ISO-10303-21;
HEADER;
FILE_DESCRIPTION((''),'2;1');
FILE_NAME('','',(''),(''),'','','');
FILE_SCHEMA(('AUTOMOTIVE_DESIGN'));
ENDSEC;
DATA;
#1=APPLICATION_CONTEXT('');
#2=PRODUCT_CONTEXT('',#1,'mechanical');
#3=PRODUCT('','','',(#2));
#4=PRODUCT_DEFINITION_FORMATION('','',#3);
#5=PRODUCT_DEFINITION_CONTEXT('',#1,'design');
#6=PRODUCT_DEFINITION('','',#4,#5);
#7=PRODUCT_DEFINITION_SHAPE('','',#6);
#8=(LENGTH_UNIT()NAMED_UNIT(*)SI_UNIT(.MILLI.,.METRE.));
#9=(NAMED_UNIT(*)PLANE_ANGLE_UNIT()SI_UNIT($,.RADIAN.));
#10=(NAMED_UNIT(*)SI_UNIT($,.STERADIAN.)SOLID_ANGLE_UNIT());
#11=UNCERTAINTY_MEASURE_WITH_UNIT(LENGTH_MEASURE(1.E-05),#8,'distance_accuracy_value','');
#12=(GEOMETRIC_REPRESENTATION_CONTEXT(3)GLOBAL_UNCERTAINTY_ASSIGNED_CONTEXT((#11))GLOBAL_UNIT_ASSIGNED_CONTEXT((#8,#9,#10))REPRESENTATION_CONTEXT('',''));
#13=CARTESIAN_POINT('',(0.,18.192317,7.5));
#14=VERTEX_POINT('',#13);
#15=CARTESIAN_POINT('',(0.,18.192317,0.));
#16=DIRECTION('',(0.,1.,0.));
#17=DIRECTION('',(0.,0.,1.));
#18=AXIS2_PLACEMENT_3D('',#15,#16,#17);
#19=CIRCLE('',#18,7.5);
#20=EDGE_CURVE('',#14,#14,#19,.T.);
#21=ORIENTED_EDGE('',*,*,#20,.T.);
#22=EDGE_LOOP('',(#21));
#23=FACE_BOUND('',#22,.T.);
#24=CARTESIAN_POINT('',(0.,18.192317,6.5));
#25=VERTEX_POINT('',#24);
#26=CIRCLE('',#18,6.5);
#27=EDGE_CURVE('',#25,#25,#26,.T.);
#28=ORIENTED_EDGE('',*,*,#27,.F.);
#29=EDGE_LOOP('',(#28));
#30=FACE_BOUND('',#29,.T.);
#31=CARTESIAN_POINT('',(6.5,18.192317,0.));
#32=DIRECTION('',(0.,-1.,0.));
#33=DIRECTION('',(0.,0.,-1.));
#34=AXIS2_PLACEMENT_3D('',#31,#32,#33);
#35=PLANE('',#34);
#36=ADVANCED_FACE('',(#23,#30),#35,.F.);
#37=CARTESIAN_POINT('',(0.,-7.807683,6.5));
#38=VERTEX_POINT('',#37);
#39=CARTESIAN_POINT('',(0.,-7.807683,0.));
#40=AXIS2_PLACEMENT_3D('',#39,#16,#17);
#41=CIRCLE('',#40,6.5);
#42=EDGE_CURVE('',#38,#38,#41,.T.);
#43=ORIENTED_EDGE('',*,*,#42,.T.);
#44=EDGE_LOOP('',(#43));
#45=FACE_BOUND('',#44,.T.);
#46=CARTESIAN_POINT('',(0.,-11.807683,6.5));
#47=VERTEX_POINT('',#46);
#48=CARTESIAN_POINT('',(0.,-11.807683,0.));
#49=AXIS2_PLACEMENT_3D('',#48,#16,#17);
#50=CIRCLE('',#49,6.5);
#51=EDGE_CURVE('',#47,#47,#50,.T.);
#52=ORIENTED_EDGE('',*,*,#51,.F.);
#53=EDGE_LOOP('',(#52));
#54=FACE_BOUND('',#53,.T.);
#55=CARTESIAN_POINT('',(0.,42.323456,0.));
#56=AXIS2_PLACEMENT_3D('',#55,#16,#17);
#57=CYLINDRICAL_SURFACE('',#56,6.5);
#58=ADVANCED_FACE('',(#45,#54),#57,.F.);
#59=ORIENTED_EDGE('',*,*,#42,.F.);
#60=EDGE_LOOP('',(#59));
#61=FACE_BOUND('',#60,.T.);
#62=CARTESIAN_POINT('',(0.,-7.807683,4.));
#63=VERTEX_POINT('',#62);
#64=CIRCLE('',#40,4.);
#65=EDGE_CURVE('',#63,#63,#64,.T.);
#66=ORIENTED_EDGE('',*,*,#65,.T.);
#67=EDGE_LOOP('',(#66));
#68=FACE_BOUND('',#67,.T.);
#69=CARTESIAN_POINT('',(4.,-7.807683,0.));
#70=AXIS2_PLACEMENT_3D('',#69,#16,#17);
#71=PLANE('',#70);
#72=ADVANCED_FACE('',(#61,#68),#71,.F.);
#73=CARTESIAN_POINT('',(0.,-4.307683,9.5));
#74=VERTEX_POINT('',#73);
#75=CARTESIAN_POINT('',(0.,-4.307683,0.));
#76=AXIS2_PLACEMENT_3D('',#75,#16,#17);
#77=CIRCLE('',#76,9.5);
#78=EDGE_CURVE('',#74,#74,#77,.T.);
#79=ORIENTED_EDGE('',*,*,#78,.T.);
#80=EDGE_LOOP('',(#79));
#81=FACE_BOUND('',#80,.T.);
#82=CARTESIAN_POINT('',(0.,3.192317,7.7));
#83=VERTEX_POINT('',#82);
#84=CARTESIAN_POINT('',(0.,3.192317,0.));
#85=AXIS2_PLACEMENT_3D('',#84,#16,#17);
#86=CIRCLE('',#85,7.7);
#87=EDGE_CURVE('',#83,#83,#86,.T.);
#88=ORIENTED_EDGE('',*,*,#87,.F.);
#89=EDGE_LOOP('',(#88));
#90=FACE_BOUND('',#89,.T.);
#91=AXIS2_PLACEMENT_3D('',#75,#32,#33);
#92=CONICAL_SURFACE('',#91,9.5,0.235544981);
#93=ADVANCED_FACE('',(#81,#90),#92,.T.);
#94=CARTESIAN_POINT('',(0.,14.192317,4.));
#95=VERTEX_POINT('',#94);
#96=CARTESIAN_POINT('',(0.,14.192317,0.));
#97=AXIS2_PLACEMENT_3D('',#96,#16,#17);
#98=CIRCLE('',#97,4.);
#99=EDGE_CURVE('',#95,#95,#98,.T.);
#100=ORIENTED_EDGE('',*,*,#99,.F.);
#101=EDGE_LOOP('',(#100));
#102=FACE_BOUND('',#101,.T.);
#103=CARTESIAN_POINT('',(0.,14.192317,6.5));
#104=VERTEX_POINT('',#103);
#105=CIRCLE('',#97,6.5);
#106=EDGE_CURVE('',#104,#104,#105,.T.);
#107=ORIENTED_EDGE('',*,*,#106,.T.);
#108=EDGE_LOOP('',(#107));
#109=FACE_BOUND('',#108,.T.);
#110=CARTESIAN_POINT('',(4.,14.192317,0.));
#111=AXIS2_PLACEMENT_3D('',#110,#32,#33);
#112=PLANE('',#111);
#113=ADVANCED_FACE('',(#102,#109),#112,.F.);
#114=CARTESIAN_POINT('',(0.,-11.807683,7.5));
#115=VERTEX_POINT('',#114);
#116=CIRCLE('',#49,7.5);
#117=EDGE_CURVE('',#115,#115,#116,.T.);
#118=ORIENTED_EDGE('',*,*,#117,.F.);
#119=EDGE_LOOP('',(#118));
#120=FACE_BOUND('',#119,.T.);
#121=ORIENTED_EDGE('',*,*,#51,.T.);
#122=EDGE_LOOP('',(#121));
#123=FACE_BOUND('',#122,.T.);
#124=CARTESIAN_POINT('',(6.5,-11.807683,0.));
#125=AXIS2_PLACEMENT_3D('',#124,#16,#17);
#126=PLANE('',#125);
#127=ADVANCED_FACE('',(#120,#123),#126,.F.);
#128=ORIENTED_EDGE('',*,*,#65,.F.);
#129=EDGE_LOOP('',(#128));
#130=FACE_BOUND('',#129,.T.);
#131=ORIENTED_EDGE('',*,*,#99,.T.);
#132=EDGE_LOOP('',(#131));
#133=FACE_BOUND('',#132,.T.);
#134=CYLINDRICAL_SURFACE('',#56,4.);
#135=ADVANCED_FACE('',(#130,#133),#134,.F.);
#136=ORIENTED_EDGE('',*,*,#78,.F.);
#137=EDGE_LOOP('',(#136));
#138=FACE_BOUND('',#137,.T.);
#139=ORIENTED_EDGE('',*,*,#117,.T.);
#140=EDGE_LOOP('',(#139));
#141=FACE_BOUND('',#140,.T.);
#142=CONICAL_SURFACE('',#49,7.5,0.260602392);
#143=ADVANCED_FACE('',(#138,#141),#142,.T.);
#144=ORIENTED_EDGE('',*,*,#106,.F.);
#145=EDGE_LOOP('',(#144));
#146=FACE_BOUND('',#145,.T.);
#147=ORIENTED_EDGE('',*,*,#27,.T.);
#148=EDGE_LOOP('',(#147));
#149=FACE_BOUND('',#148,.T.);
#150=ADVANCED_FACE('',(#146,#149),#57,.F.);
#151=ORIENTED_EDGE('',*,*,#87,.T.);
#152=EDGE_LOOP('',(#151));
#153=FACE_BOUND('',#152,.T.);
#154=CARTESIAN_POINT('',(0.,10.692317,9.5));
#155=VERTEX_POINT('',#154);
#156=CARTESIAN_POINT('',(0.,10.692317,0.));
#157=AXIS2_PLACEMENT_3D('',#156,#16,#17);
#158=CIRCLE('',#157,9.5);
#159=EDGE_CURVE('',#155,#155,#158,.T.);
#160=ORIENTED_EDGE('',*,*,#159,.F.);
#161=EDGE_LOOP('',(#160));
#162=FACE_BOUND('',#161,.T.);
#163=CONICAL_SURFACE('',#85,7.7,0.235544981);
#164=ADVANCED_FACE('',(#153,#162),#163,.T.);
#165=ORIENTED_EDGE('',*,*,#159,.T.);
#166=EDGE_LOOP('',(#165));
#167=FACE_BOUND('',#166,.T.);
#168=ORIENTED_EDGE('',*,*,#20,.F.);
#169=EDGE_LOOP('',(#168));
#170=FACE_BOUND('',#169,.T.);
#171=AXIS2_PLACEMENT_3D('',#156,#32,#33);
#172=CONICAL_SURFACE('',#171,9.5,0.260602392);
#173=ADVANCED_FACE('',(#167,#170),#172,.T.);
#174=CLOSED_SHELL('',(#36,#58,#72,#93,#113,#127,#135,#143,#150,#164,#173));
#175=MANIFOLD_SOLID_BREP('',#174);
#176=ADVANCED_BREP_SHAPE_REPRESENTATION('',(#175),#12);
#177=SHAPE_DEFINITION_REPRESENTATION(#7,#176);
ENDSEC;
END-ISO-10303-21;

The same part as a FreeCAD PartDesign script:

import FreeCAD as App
import Part
import Sketcher


def add_polygon(sketch, points):
    """Adds a closed chain of lines whose ends are joined by coincident constraints."""
    first, n = sketch.GeometryCount, len(points)
    for a, b in zip(points, points[1:] + points[:1]):
        sketch.addGeometry(Part.LineSegment(App.Vector(*a, 0), App.Vector(*b, 0)), False)
    for i in range(n):
        sketch.addConstraint(Sketcher.Constraint("Coincident", first + i, 2, first + (i + 1) % n, 1))

doc = App.newDocument("Part")
body = doc.addObject("PartDesign::Body", "Body")

sketch1 = body.newObject("Sketcher::SketchObject", "Sketch")
sketch1.AttachmentSupport = (doc.getObject("XY_Plane"), [""])
sketch1.MapMode = "FlatFace"
add_polygon(sketch1, [(4, 14.2), (4, -7.8), (6.5, -7.8), (6.5, -11.8), (7.5, -11.8), (9.5, -4.3), (7.7, 3.2), (9.5, 10.7), (7.5, 18.2), (6.5, 18.2), (6.5, 14.2)])
sketch1.addConstraint([
    Sketcher.Constraint("Vertical", 0),
    Sketcher.Constraint("Horizontal", 1),
    Sketcher.Constraint("Vertical", 2),
    Sketcher.Constraint("Horizontal", 3),
    Sketcher.Constraint("Horizontal", 8),
    Sketcher.Constraint("Vertical", 9),
    Sketcher.Constraint("Horizontal", 10),
    Sketcher.Constraint("Vertical", 4, 2, 6, 2),
    Sketcher.Constraint("Vertical", 3, 2, 7, 2),
    Sketcher.Constraint("Vertical", 2, 2, 8, 2),
    Sketcher.Constraint("Equal", 2, 9),
    Sketcher.Constraint("Equal", 5, 6),
    Sketcher.Constraint("Equal", 4, 7),
    Sketcher.Constraint("DistanceX", 3, 1, 3, 2, 1.0),
    Sketcher.Constraint("DistanceY", 0, 2, 0, 1, 22.0),
    Sketcher.Constraint("DistanceY", 2, 2, 2, 1, 4.0),
    Sketcher.Constraint("DistanceX", 1, 1, 1, 2, 2.5),
    Sketcher.Constraint("DistanceX", -1, 1, 0, 2, 4.0),
    Sketcher.Constraint("DistanceX", 1, 2, 4, 2, 3.0),
    Sketcher.Constraint("DistanceY", 4, 2, 6, 2, 15.0),
    Sketcher.Constraint("DistanceX", -1, 1, 5, 2, 7.7),
    Sketcher.Constraint("DistanceY", 0, 2, -1, 1, 7.807683),
])
revolution = body.newObject("PartDesign::Revolution", "Revolution")
revolution.Profile = sketch1
revolution.ReferenceAxis = (sketch1, ["V_Axis"])
revolution.Angle = 360

doc.recompute()
